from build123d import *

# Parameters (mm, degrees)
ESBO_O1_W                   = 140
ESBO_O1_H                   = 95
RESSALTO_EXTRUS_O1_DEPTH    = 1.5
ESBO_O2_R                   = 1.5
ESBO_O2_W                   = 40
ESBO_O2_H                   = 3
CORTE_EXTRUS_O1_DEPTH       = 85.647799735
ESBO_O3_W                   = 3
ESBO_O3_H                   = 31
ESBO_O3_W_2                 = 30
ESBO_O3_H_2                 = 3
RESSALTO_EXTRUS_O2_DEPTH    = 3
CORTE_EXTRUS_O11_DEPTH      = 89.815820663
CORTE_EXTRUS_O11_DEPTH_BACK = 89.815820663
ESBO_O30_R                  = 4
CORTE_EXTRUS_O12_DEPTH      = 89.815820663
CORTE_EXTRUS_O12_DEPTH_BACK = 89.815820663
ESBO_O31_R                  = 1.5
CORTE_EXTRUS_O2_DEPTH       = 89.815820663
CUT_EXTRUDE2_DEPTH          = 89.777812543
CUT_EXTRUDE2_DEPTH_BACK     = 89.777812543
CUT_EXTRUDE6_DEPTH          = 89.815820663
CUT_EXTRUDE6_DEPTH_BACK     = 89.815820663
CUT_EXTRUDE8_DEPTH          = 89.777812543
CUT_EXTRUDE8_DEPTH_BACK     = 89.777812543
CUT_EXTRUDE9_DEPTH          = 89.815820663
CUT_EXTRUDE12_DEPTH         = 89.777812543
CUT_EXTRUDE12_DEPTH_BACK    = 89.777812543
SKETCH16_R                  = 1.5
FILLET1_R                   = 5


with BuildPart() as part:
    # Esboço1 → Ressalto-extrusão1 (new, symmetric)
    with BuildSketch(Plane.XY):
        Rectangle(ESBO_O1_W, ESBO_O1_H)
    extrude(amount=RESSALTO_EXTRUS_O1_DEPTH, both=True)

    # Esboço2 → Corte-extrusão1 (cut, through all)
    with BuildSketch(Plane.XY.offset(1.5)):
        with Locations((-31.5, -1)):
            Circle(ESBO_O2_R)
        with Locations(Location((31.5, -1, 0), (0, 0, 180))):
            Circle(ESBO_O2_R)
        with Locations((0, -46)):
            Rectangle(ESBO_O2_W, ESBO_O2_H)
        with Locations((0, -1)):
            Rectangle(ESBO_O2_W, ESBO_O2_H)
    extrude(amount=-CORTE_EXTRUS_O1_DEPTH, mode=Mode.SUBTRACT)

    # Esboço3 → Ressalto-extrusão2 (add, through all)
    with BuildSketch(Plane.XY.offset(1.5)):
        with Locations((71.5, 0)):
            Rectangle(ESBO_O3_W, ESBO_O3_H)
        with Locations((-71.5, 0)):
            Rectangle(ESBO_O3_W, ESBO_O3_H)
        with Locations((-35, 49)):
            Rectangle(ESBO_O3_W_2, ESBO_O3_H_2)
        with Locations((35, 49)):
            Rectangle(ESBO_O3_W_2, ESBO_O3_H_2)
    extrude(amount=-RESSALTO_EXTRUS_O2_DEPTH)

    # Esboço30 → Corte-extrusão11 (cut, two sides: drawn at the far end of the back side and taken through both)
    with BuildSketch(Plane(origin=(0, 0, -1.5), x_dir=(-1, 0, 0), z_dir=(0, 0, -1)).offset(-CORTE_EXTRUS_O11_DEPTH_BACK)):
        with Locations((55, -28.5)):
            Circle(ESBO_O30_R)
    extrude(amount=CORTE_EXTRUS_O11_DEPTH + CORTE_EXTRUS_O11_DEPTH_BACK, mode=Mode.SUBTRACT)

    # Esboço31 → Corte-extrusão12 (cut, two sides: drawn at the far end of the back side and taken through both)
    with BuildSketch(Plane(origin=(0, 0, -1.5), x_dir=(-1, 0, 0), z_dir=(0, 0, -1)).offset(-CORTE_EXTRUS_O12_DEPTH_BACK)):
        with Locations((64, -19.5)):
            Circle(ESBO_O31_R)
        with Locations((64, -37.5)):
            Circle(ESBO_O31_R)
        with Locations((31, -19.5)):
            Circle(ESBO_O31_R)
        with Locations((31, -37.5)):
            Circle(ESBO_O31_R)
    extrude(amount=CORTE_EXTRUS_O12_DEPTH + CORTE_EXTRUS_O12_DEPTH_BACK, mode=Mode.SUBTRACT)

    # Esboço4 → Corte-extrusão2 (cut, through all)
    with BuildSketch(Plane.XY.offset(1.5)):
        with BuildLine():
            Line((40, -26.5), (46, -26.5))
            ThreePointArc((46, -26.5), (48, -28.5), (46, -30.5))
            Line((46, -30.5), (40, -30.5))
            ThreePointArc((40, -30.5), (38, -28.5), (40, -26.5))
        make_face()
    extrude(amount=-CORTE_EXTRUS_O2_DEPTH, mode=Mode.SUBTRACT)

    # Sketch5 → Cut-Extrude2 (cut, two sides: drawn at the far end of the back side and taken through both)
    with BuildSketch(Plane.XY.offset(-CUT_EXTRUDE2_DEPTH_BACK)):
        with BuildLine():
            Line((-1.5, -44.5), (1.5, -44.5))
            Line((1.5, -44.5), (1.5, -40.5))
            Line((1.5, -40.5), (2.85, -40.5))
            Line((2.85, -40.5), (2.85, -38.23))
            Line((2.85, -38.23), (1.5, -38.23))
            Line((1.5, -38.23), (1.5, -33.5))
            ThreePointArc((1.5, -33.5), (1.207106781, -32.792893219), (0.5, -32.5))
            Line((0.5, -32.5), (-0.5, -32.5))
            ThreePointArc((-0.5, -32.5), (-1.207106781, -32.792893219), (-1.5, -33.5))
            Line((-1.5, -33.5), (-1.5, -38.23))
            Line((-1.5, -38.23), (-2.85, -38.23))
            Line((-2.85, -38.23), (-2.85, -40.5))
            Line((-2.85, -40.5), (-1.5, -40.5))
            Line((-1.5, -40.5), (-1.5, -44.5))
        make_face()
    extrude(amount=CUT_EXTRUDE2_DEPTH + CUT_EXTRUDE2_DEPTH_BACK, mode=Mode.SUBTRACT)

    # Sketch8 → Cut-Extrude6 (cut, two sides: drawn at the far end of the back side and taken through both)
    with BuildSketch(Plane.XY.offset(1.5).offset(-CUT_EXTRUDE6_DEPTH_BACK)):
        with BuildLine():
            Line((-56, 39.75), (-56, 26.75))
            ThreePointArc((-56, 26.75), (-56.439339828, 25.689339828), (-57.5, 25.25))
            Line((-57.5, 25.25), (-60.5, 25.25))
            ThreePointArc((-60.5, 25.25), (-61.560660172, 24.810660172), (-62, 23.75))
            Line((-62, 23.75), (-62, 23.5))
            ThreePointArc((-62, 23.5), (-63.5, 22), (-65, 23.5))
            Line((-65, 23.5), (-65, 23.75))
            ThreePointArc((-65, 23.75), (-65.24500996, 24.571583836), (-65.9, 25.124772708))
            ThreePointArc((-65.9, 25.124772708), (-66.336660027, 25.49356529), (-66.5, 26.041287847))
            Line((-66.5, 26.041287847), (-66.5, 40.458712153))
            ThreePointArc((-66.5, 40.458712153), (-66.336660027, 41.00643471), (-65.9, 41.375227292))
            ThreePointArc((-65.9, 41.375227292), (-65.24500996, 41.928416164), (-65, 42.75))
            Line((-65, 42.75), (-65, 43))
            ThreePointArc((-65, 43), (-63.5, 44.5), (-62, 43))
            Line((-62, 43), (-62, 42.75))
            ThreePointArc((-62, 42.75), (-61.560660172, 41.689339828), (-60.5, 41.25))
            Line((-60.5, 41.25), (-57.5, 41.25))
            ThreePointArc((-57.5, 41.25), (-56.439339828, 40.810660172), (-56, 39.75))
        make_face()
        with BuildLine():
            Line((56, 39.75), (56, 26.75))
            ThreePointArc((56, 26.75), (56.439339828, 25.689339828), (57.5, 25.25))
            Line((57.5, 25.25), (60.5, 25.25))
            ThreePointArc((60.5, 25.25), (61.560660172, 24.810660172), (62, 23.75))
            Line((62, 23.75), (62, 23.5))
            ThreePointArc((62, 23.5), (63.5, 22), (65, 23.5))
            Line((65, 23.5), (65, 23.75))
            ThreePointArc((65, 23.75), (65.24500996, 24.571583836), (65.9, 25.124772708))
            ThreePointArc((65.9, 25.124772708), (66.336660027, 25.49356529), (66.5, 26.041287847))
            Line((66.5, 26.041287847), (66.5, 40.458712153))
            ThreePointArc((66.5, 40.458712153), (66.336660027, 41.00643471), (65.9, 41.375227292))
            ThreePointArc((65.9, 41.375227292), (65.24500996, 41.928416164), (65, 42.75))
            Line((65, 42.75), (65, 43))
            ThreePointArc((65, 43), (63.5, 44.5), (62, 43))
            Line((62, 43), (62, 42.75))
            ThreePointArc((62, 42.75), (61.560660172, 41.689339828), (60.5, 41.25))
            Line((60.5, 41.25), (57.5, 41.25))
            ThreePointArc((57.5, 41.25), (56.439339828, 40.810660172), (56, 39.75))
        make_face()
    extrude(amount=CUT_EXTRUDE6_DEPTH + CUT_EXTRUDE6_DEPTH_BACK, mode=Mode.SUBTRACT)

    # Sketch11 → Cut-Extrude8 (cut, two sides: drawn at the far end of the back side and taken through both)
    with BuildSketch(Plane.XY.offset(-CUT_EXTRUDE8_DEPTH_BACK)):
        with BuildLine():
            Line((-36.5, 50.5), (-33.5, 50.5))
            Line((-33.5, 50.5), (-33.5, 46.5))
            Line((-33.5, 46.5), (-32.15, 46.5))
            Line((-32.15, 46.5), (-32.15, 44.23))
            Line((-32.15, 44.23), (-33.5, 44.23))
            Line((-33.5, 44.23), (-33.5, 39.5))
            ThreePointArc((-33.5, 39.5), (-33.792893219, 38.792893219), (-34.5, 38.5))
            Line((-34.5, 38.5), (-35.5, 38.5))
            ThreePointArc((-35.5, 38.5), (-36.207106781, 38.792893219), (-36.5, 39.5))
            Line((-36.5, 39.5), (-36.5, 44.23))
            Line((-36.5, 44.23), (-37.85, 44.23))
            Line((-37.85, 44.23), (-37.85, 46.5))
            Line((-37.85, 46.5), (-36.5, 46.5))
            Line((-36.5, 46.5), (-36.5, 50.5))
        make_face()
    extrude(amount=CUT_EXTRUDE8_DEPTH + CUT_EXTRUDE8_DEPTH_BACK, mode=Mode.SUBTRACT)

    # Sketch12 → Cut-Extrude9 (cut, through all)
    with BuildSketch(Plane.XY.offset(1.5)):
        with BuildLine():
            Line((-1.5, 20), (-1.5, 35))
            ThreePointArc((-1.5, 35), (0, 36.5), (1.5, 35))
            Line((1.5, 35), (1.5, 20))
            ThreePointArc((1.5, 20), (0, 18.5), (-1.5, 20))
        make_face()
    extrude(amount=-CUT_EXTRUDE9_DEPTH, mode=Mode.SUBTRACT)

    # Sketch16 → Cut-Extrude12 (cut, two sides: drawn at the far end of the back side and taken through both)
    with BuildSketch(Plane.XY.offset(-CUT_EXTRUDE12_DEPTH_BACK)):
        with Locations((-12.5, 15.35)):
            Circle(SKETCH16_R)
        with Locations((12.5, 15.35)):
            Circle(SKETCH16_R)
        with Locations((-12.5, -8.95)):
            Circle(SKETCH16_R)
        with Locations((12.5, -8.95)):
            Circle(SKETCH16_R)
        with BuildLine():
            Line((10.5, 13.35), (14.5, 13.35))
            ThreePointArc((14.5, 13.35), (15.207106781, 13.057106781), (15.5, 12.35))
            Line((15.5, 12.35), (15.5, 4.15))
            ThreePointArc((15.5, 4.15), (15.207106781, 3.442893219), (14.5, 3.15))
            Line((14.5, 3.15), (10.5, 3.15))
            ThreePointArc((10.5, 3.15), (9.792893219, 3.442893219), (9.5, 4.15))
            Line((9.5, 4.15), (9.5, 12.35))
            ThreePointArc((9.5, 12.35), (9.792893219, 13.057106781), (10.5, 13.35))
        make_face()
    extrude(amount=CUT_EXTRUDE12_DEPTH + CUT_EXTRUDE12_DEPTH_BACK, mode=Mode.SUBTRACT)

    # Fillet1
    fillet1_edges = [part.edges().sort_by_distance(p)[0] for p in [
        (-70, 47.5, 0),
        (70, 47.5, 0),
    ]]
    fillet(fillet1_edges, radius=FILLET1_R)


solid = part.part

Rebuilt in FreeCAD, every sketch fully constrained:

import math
import FreeCAD as App
import Part
import Sketcher
from FreeCAD import Vector
Q = App.Units.Quantity


def edges_at(feature, points):
    """Names of the edges that pass closest to the given points."""
    edges = feature.Shape.Edges
    near = lambda p: min(range(len(edges)), key=lambda i: edges[i].distToShape(Part.Vertex(*p))[0])
    return sorted({f"Edge{near(p) + 1}" for p in points})


def add_polygon(sketch, points):
    """Adds a closed chain of lines whose ends are joined by coincident constraints."""
    first, n = sketch.GeometryCount, len(points)
    for a, b in zip(points, points[1:] + points[:1]):
        sketch.addGeometry(Part.LineSegment(App.Vector(*a, 0), App.Vector(*b, 0)), False)
    for i in range(n):
        sketch.addConstraint(Sketcher.Constraint("Coincident", first + i, 2, first + (i + 1) % n, 1))

doc = App.newDocument("Part")
params = doc.addObject("Spreadsheet::Sheet", "Params")
for row, (alias, value) in enumerate([
    ("sketch1_width", "140 mm"),
    ("sketch1_height", "95 mm"),
    ("pad1_length", "3 mm"),
    ("sketch2_diameter", "3 mm"),
    ("sketch2_width", "40 mm"),
    ("sketch2_height", "3 mm"),
    ("sketch3_width", "3 mm"),
    ("sketch3_width2", "30 mm"),
    ("sketch3_height", "31 mm"),
    ("sketch4_diameter", "8 mm"),
    ("sketch5_diameter", "3 mm"),
    ("sketch6_radius", "2 mm"),
    ("sketch6_width", "6 mm"),
    ("sketch7_radius", "1 mm"),
    ("sketch7_width", "3 mm"),
    ("sketch7_height", "4 mm"),
    ("sketch7_width2", "1.35 mm"),
    ("sketch7_height2", "2.27 mm"),
    ("sketch8_radius", "1 mm"),
    ("sketch8_radius2", "1.5 mm"),
    ("sketch8_width", "3 mm"),
    ("sketch8_height", "13 mm"),
    ("sketch8_height2", "0.25 mm"),
    ("sketch9_radius", "1 mm"),
    ("sketch9_width", "3 mm"),
    ("sketch9_height", "4 mm"),
    ("sketch9_width2", "1.35 mm"),
    ("sketch9_height2", "2.27 mm"),
    ("sketch10_radius", "1.5 mm"),
    ("sketch10_height", "15 mm"),
    ("sketch11_diameter", "3 mm"),
    ("sketch11_radius", "1 mm"),
    ("sketch11_width", "4 mm"),
    ("sketch11_height", "8.2 mm"),
    ("fillet_radius", "5 mm"),
], start=1):
    params.set(f"A{row}", alias)
    params.set(f"B{row}", "=" + value)
    params.setAlias(f"B{row}", alias)

body = doc.addObject("PartDesign::Body", "Body")

sketch1 = body.newObject("Sketcher::SketchObject", "Sketch")
sketch1.AttachmentSupport = (doc.getObject("XY_Plane"), [""])
sketch1.MapMode = "FlatFace"
add_polygon(sketch1, [(-70, 48), (-70, -48), (70, -48), (70, 48)])
sketch1.addConstraint([
    Sketcher.Constraint("Vertical", 0),
    Sketcher.Constraint("Horizontal", 1),
    Sketcher.Constraint("Vertical", 2),
    Sketcher.Constraint("Horizontal", 3),
    Sketcher.Constraint("Symmetric", 0, 2, 2, 2, -1, 1),
    Sketcher.Constraint("DistanceX", 1, 1, 1, 2, Q("140 mm")),
    Sketcher.Constraint("DistanceY", 0, 2, 0, 1, Q("95 mm")),
])
sketch1.setExpression("Constraints[9]", "Params.sketch1_width")
sketch1.setExpression("Constraints[10]", "Params.sketch1_height")
pad1 = body.newObject("PartDesign::Pad", "Pad")
pad1.Profile = sketch1
pad1.setExpression("Length", "Params.pad1_length")
pad1.Midplane = True

sketch2 = body.newObject("Sketcher::SketchObject", "Sketch001")
sketch2.AttachmentSupport = (doc.getObject("XY_Plane"), [""])
sketch2.MapMode = "FlatFace"
sketch2.AttachmentOffset = App.Placement(Vector(0, 0, 1.5), App.Rotation())
sketch2.addGeometry(Part.Circle(Vector(-31.5, -1, 0), Vector(0, 0, 1), 1.5), False)
sketch2.addGeometry(Part.Circle(Vector(31.5, -1, 0), Vector(0, 0, 1), 1.5), False)
add_polygon(sketch2, [(-20, -44.5), (-20, -47.5), (20, -47.5), (20, -44.5)])
add_polygon(sketch2, [(-20, 0.5), (-20, -2.5), (20, -2.5), (20, 0.5)])
sketch2.addConstraint([
    Sketcher.Constraint("Vertical", 2),
    Sketcher.Constraint("Horizontal", 3),
    Sketcher.Constraint("Vertical", 4),
    Sketcher.Constraint("Horizontal", 5),
    Sketcher.Constraint("Vertical", 6),
    Sketcher.Constraint("Horizontal", 7),
    Sketcher.Constraint("Vertical", 8),
    Sketcher.Constraint("Horizontal", 9),
    Sketcher.Constraint("Equal", 0, 1),
    Sketcher.Constraint("Symmetric", 0, 3, 1, 3, -2),
    Sketcher.Constraint("Vertical", 5, 2, 6, 2),
    Sketcher.Constraint("Vertical", 4, 2, 7, 2),
    Sketcher.Constraint("Equal", 4, 6),
    Sketcher.Constraint("Diameter", 0, Q("3 mm")),
    Sketcher.Constraint("DistanceX", 3, 1, 3, 2, Q("40 mm")),
    Sketcher.Constraint("DistanceY", 2, 2, 2, 1, Q("3 mm")),
    Sketcher.Constraint("DistanceY", 0, 3, -1, 1, Q("1 mm")),
    Sketcher.Constraint("DistanceX", 2, 2, -1, 1, Q("20 mm")),
    Sketcher.Constraint("DistanceX", 0, 3, 1, 3, Q("63 mm")),
    Sketcher.Constraint("DistanceY", 5, 2, 6, 2, Q("42 mm")),
    Sketcher.Constraint("DistanceY", 2, 2, -1, 1, Q("47.5 mm")),
])
sketch2.setExpression("Constraints[21]", "Params.sketch2_diameter")
sketch2.setExpression("Constraints[22]", "Params.sketch2_width")
sketch2.setExpression("Constraints[23]", "Params.sketch2_height")
pocket1 = body.newObject("PartDesign::Pocket", "Pocket")
pocket1.Profile = sketch2
pocket1.Type = "ThroughAll"

sketch3 = body.newObject("Sketcher::SketchObject", "Sketch002")
sketch3.AttachmentSupport = (doc.getObject("XY_Plane"), [""])
sketch3.MapMode = "FlatFace"
sketch3.AttachmentOffset = App.Placement(Vector(0, 0, 1.5), App.Rotation())
add_polygon(sketch3, [(70, 15.5), (70, -15.5), (73, -15.5), (73, 15.5)])
add_polygon(sketch3, [(-73, 15.5), (-73, -15.5), (-70, -15.5), (-70, 15.5)])
add_polygon(sketch3, [(-50, 50.5), (-50, 47.5), (-20, 47.5), (-20, 50.5)])
add_polygon(sketch3, [(20, 50.5), (20, 47.5), (50, 47.5), (50, 50.5)])
sketch3.addConstraint([
    Sketcher.Constraint("Vertical", 0),
    Sketcher.Constraint("Horizontal", 1),
    Sketcher.Constraint("Vertical", 2),
    Sketcher.Constraint("Horizontal", 3),
    Sketcher.Constraint("Vertical", 4),
    Sketcher.Constraint("Horizontal", 5),
    Sketcher.Constraint("Vertical", 6),
    Sketcher.Constraint("Horizontal", 7),
    Sketcher.Constraint("Vertical", 8),
    Sketcher.Constraint("Horizontal", 9),
    Sketcher.Constraint("Vertical", 10),
    Sketcher.Constraint("Horizontal", 11),
    Sketcher.Constraint("Vertical", 12),
    Sketcher.Constraint("Horizontal", 13),
    Sketcher.Constraint("Vertical", 14),
    Sketcher.Constraint("Horizontal", 15),
    Sketcher.Constraint("Symmetric", 2, 2, 4, 2, -1, 1),
    Sketcher.Constraint("Symmetric", 0, 2, 6, 2, -1, 1),
    Sketcher.Constraint("Symmetric", 9, 2, 12, 2, -2),
    Sketcher.Constraint("Symmetric", 11, 2, 14, 2, -2),
    Sketcher.Constraint("Horizontal", 1, 2, 4, 2),
    Sketcher.Constraint("Equal", 7, 8),
    Sketcher.Constraint("DistanceX", 1, 1, 1, 2, Q("3 mm")),
    Sketcher.Constraint("DistanceX", 9, 1, 9, 2, Q("30 mm")),
    Sketcher.Constraint("DistanceY", 0, 2, 0, 1, Q("31 mm")),
    Sketcher.Constraint("DistanceX", -1, 1, 0, 2, Q("70 mm")),
    Sketcher.Constraint("DistanceX", 8, 2, -1, 1, Q("50 mm")),
    Sketcher.Constraint("DistanceY", 6, 2, 8, 2, Q("32 mm")),
])
sketch3.setExpression("Constraints[38]", "Params.sketch3_width")
sketch3.setExpression("Constraints[39]", "Params.sketch3_width2")
sketch3.setExpression("Constraints[40]", "Params.sketch3_height")
pad2 = body.newObject("PartDesign::Pad", "Pad001")
pad2.Profile = sketch3
pad2.Type = "UpToLast"
pad2.Reversed = True

sketch4 = body.newObject("Sketcher::SketchObject", "Sketch003")
sketch4.AttachmentSupport = (doc.getObject("XY_Plane"), [""])
sketch4.MapMode = "FlatFace"
sketch4.AttachmentOffset = App.Placement(Vector(0, 0, -1.5), App.Rotation())
sketch4.addGeometry(Part.Circle(Vector(-55, -28.5, 0), Vector(0, 0, 1), 4), False)
sketch4.addConstraint([
    Sketcher.Constraint("Diameter", 0, Q("8 mm")),
    Sketcher.Constraint("DistanceX", 0, 3, -1, 1, Q("55 mm")),
    Sketcher.Constraint("DistanceY", 0, 3, -1, 1, Q("28.5 mm")),
])
sketch4.setExpression("Constraints[0]", "Params.sketch4_diameter")
pocket2 = body.newObject("PartDesign::Pocket", "Pocket001")
pocket2.Profile = sketch4
pocket2.Type = "ThroughAll"
pocket2.Midplane = True

sketch5 = body.newObject("Sketcher::SketchObject", "Sketch004")
sketch5.AttachmentSupport = (doc.getObject("XY_Plane"), [""])
sketch5.MapMode = "FlatFace"
sketch5.AttachmentOffset = App.Placement(Vector(0, 0, -1.5), App.Rotation())
sketch5.addGeometry([
    Part.Circle(Vector(-64, -19.5, 0), Vector(0, 0, 1), 1.5),
    Part.Circle(Vector(-64, -37.5, 0), Vector(0, 0, 1), 1.5),
    Part.Circle(Vector(-31, -19.5, 0), Vector(0, 0, 1), 1.5),
    Part.Circle(Vector(-31, -37.5, 0), Vector(0, 0, 1), 1.5),
], False)
sketch5.addConstraint([
    Sketcher.Constraint("Equal", 0, 1),
    Sketcher.Constraint("Equal", 1, 2),
    Sketcher.Constraint("Equal", 2, 3),
    Sketcher.Constraint("Horizontal", 0, 3, 2, 3),
    Sketcher.Constraint("Horizontal", 1, 3, 3, 3),
    Sketcher.Constraint("Vertical", 0, 3, 1, 3),
    Sketcher.Constraint("Vertical", 2, 3, 3, 3),
    Sketcher.Constraint("Diameter", 0, Q("3 mm")),
    Sketcher.Constraint("DistanceX", 0, 3, -1, 1, Q("64 mm")),
    Sketcher.Constraint("DistanceX", 2, 3, -1, 1, Q("31 mm")),
    Sketcher.Constraint("DistanceY", 1, 3, 0, 3, Q("18 mm")),
    Sketcher.Constraint("DistanceY", 0, 3, -1, 1, Q("19.5 mm")),
])
sketch5.setExpression("Constraints[7]", "Params.sketch5_diameter")
pocket3 = body.newObject("PartDesign::Pocket", "Pocket002")
pocket3.Profile = sketch5
pocket3.Type = "ThroughAll"
pocket3.Midplane = True

sketch6 = body.newObject("Sketcher::SketchObject", "Sketch005")
sketch6.AttachmentSupport = (doc.getObject("XY_Plane"), [""])
sketch6.MapMode = "FlatFace"
sketch6.AttachmentOffset = App.Placement(Vector(0, 0, 1.5), App.Rotation())
sketch6.addGeometry([
    Part.LineSegment(Vector(46, -26.5, 0), Vector(40, -26.5, 0)),
    Part.ArcOfCircle(Part.Circle(Vector(40, -28.5, 0), Vector(0, 0, 1), 2), math.radians(90), math.radians(270)),
    Part.LineSegment(Vector(40, -30.5, 0), Vector(46, -30.5, 0)),
    Part.ArcOfCircle(Part.Circle(Vector(46, -28.5, 0), Vector(0, 0, 1), 2), math.radians(-90), math.radians(90)),
], False)
sketch6.addConstraint([
    Sketcher.Constraint("Tangent", 0, 2, 1, 1),
    Sketcher.Constraint("Tangent", 1, 2, 2, 1),
    Sketcher.Constraint("Tangent", 2, 2, 3, 1),
    Sketcher.Constraint("Tangent", 3, 2, 0, 1),
    Sketcher.Constraint("Horizontal", 0),
    Sketcher.Constraint("Horizontal", 2),
    Sketcher.Constraint("Radius", 1, Q("2 mm")),
    Sketcher.Constraint("DistanceX", 0, 2, 0, 1, Q("6 mm")),
    Sketcher.Constraint("DistanceX", -1, 1, 1, 3, Q("40 mm")),
    Sketcher.Constraint("DistanceY", 1, 3, -1, 1, Q("28.5 mm")),
])
sketch6.setExpression("Constraints[6]", "Params.sketch6_radius")
sketch6.setExpression("Constraints[7]", "Params.sketch6_width")
pocket4 = body.newObject("PartDesign::Pocket", "Pocket003")
pocket4.Profile = sketch6
pocket4.Type = "ThroughAll"

sketch7 = body.newObject("Sketcher::SketchObject", "Sketch006")
sketch7.AttachmentSupport = (doc.getObject("XY_Plane"), [""])
sketch7.MapMode = "FlatFace"
sketch7.addGeometry([
    Part.LineSegment(Vector(-1.5, -44.5, 0), Vector(1.5, -44.5, 0)),
    Part.LineSegment(Vector(1.5, -44.5, 0), Vector(1.5, -40.5, 0)),
    Part.LineSegment(Vector(1.5, -40.5, 0), Vector(2.9, -40.5, 0)),
    Part.LineSegment(Vector(2.9, -40.5, 0), Vector(2.9, -38.2, 0)),
    Part.LineSegment(Vector(2.9, -38.2, 0), Vector(1.5, -38.2, 0)),
    Part.LineSegment(Vector(1.5, -38.2, 0), Vector(1.5, -33.5, 0)),
    Part.ArcOfCircle(Part.Circle(Vector(0.5, -33.5, 0), Vector(0, 0, 1), 1), math.radians(0), math.radians(90)),
    Part.LineSegment(Vector(0.5, -32.5, 0), Vector(-0.5, -32.5, 0)),
    Part.ArcOfCircle(Part.Circle(Vector(-0.5, -33.5, 0), Vector(0, 0, 1), 1), math.radians(90), math.radians(180)),
    Part.LineSegment(Vector(-1.5, -33.5, 0), Vector(-1.5, -38.2, 0)),
    Part.LineSegment(Vector(-1.5, -38.2, 0), Vector(-2.9, -38.2, 0)),
    Part.LineSegment(Vector(-2.9, -38.2, 0), Vector(-2.9, -40.5, 0)),
    Part.LineSegment(Vector(-2.9, -40.5, 0), Vector(-1.5, -40.5, 0)),
    Part.LineSegment(Vector(-1.5, -40.5, 0), Vector(-1.5, -44.5, 0)),
], False)
sketch7.addConstraint([
    Sketcher.Constraint("Coincident", 0, 2, 1, 1),
    Sketcher.Constraint("Coincident", 1, 2, 2, 1),
    Sketcher.Constraint("Coincident", 2, 2, 3, 1),
    Sketcher.Constraint("Coincident", 3, 2, 4, 1),
    Sketcher.Constraint("Coincident", 4, 2, 5, 1),
    Sketcher.Constraint("Tangent", 5, 2, 6, 1),
    Sketcher.Constraint("Tangent", 6, 2, 7, 1),
    Sketcher.Constraint("Tangent", 7, 2, 8, 1),
    Sketcher.Constraint("Tangent", 8, 2, 9, 1),
    Sketcher.Constraint("Coincident", 9, 2, 10, 1),
    Sketcher.Constraint("Coincident", 10, 2, 11, 1),
    Sketcher.Constraint("Coincident", 11, 2, 12, 1),
    Sketcher.Constraint("Coincident", 12, 2, 13, 1),
    Sketcher.Constraint("Coincident", 13, 2, 0, 1),
    Sketcher.Constraint("Horizontal", 0),
    Sketcher.Constraint("Vertical", 1),
    Sketcher.Constraint("Horizontal", 2),
    Sketcher.Constraint("Vertical", 3),
    Sketcher.Constraint("Horizontal", 4),
    Sketcher.Constraint("Vertical", 5),
    Sketcher.Constraint("Horizontal", 7),
    Sketcher.Constraint("Vertical", 9),
    Sketcher.Constraint("Horizontal", 10),
    Sketcher.Constraint("Vertical", 11),
    Sketcher.Constraint("Horizontal", 12),
    Sketcher.Constraint("Vertical", 13),
    Sketcher.Constraint("Equal", 6, 8),
    Sketcher.Constraint("Symmetric", 4, 2, 9, 2, -2),
    Sketcher.Constraint("Symmetric", 2, 2, 11, 2, -2),
    Sketcher.Constraint("Vertical", 1, 2, 4, 2),
    Sketcher.Constraint("Vertical", 9, 2, 12, 2),
    Sketcher.Constraint("Radius", 6, Q("1 mm")),
    Sketcher.Constraint("DistanceX", 0, 1, 0, 2, Q("3 mm")),
    Sketcher.Constraint("DistanceY", 1, 1, 1, 2, Q("4 mm")),
    Sketcher.Constraint("DistanceY", 0, 2, 6, 3, Q("11 mm")),
    Sketcher.Constraint("DistanceX", 2, 1, 2, 2, Q("1.35 mm")),
    Sketcher.Constraint("DistanceY", 3, 1, 3, 2, Q("2.27 mm")),
    Sketcher.Constraint("DistanceY", 6, 3, -1, 1, Q("33.5 mm")),
])
sketch7.setExpression("Constraints[31]", "Params.sketch7_radius")
sketch7.setExpression("Constraints[32]", "Params.sketch7_width")
sketch7.setExpression("Constraints[33]", "Params.sketch7_height")
sketch7.setExpression("Constraints[35]", "Params.sketch7_width2")
sketch7.setExpression("Constraints[36]", "Params.sketch7_height2")
pocket5 = body.newObject("PartDesign::Pocket", "Pocket004")
pocket5.Profile = sketch7
pocket5.Type = "ThroughAll"
pocket5.Midplane = True

sketch8 = body.newObject("Sketcher::SketchObject", "Sketch007")
sketch8.AttachmentSupport = (doc.getObject("XY_Plane"), [""])
sketch8.MapMode = "FlatFace"
sketch8.AttachmentOffset = App.Placement(Vector(0, 0, 1.5), App.Rotation())
sketch8.addGeometry([
    Part.LineSegment(Vector(-56, 26.75, 0), Vector(-56, 39.75, 0)),
    Part.ArcOfCircle(Part.Circle(Vector(-57.5, 39.75, 0), Vector(0, 0, 1), 1.5), math.radians(0), math.radians(90)),
    Part.LineSegment(Vector(-57.5, 41.25, 0), Vector(-60.5, 41.25, 0)),
    Part.ArcOfCircle(Part.Circle(Vector(-60.5, 42.75, 0), Vector(0, 0, 1), 1.5), math.radians(180), math.radians(270)),
    Part.LineSegment(Vector(-62, 42.75, 0), Vector(-62, 43, 0)),
    Part.ArcOfCircle(Part.Circle(Vector(-63.5, 43, 0), Vector(0, 0, 1), 1.5), math.radians(0), math.radians(180)),
    Part.LineSegment(Vector(-65, 43, 0), Vector(-65, 42.75, 0)),
    Part.ArcOfCircle(Part.Circle(Vector(-66.5, 42.75, 0), Vector(0, 0, 1), 1.5), math.radians(-66), math.radians(0)),
    Part.ArcOfCircle(Part.Circle(Vector(-65.5, 40.46, 0), Vector(0, 0, 1), 1), math.radians(114), math.radians(180)),
    Part.LineSegment(Vector(-66.5, 40.46, 0), Vector(-66.5, 26.04, 0)),
    Part.ArcOfCircle(Part.Circle(Vector(-65.5, 26.04, 0), Vector(0, 0, 1), 1), math.radians(180), math.radians(246)),
    Part.ArcOfCircle(Part.Circle(Vector(-66.5, 23.75, 0), Vector(0, 0, 1), 1.5), math.radians(0), math.radians(66)),
    Part.LineSegment(Vector(-65, 23.75, 0), Vector(-65, 23.5, 0)),
    Part.ArcOfCircle(Part.Circle(Vector(-63.5, 23.5, 0), Vector(0, 0, 1), 1.5), math.radians(180), math.radians(360)),
    Part.LineSegment(Vector(-62, 23.5, 0), Vector(-62, 23.75, 0)),
    Part.ArcOfCircle(Part.Circle(Vector(-60.5, 23.75, 0), Vector(0, 0, 1), 1.5), math.radians(90), math.radians(180)),
    Part.LineSegment(Vector(-60.5, 25.25, 0), Vector(-57.5, 25.25, 0)),
    Part.ArcOfCircle(Part.Circle(Vector(-57.5, 26.75, 0), Vector(0, 0, 1), 1.5), math.radians(-90), math.radians(0)),
    Part.LineSegment(Vector(56, 39.75, 0), Vector(56, 26.75, 0)),
    Part.ArcOfCircle(Part.Circle(Vector(57.5, 26.75, 0), Vector(0, 0, 1), 1.5), math.radians(180), math.radians(270)),
    Part.LineSegment(Vector(57.5, 25.25, 0), Vector(60.5, 25.25, 0)),
    Part.ArcOfCircle(Part.Circle(Vector(60.5, 23.75, 0), Vector(0, 0, 1), 1.5), math.radians(0), math.radians(90)),
    Part.LineSegment(Vector(62, 23.75, 0), Vector(62, 23.5, 0)),
    Part.ArcOfCircle(Part.Circle(Vector(63.5, 23.5, 0), Vector(0, 0, 1), 1.5), math.radians(180), math.radians(360)),
    Part.LineSegment(Vector(65, 23.5, 0), Vector(65, 23.75, 0)),
    Part.ArcOfCircle(Part.Circle(Vector(66.5, 23.75, 0), Vector(0, 0, 1), 1.5), math.radians(114), math.radians(180)),
    Part.ArcOfCircle(Part.Circle(Vector(65.5, 26.04, 0), Vector(0, 0, 1), 1), math.radians(-66), math.radians(0)),
    Part.LineSegment(Vector(66.5, 26.04, 0), Vector(66.5, 40.46, 0)),
    Part.ArcOfCircle(Part.Circle(Vector(65.5, 40.46, 0), Vector(0, 0, 1), 1), math.radians(0), math.radians(66)),
    Part.ArcOfCircle(Part.Circle(Vector(66.5, 42.75, 0), Vector(0, 0, 1), 1.5), math.radians(180), math.radians(246)),
    Part.LineSegment(Vector(65, 42.75, 0), Vector(65, 43, 0)),
    Part.ArcOfCircle(Part.Circle(Vector(63.5, 43, 0), Vector(0, 0, 1), 1.5), math.radians(0), math.radians(180)),
    Part.LineSegment(Vector(62, 43, 0), Vector(62, 42.75, 0)),
    Part.ArcOfCircle(Part.Circle(Vector(60.5, 42.75, 0), Vector(0, 0, 1), 1.5), math.radians(-90), math.radians(0)),
    Part.LineSegment(Vector(60.5, 41.25, 0), Vector(57.5, 41.25, 0)),
    Part.ArcOfCircle(Part.Circle(Vector(57.5, 39.75, 0), Vector(0, 0, 1), 1.5), math.radians(90), math.radians(180)),
], False)
sketch8.addConstraint([
    Sketcher.Constraint("Tangent", 0, 2, 1, 1),
    Sketcher.Constraint("Tangent", 1, 2, 2, 1),
    Sketcher.Constraint("Tangent", 2, 2, 3, 2),
    Sketcher.Constraint("Tangent", 3, 1, 4, 1),
    Sketcher.Constraint("Tangent", 4, 2, 5, 1),
    Sketcher.Constraint("Tangent", 5, 2, 6, 1),
    Sketcher.Constraint("Tangent", 6, 2, 7, 2),
    Sketcher.Constraint("Tangent", 7, 1, 8, 1),
    Sketcher.Constraint("Tangent", 8, 2, 9, 1),
    Sketcher.Constraint("Tangent", 9, 2, 10, 1),
    Sketcher.Constraint("Tangent", 10, 2, 11, 2),
    Sketcher.Constraint("Tangent", 11, 1, 12, 1),
    Sketcher.Constraint("Tangent", 12, 2, 13, 1),
    Sketcher.Constraint("Tangent", 13, 2, 14, 1),
    Sketcher.Constraint("Tangent", 14, 2, 15, 2),
    Sketcher.Constraint("Tangent", 15, 1, 16, 1),
    Sketcher.Constraint("Tangent", 16, 2, 17, 1),
    Sketcher.Constraint("Tangent", 17, 2, 0, 1),
    Sketcher.Constraint("Tangent", 18, 2, 19, 1),
    Sketcher.Constraint("Tangent", 19, 2, 20, 1),
    Sketcher.Constraint("Tangent", 20, 2, 21, 2),
    Sketcher.Constraint("Tangent", 21, 1, 22, 1),
    Sketcher.Constraint("Tangent", 22, 2, 23, 1),
    Sketcher.Constraint("Tangent", 23, 2, 24, 1),
    Sketcher.Constraint("Tangent", 24, 2, 25, 2),
    Sketcher.Constraint("Tangent", 25, 1, 26, 1),
    Sketcher.Constraint("Tangent", 26, 2, 27, 1),
    Sketcher.Constraint("Tangent", 27, 2, 28, 1),
    Sketcher.Constraint("Tangent", 28, 2, 29, 2),
    Sketcher.Constraint("Tangent", 29, 1, 30, 1),
    Sketcher.Constraint("Tangent", 30, 2, 31, 1),
    Sketcher.Constraint("Tangent", 31, 2, 32, 1),
    Sketcher.Constraint("Tangent", 32, 2, 33, 2),
    Sketcher.Constraint("Tangent", 33, 1, 34, 1),
    Sketcher.Constraint("Tangent", 34, 2, 35, 1),
    Sketcher.Constraint("Tangent", 35, 2, 18, 1),
    Sketcher.Constraint("Vertical", 0),
    Sketcher.Constraint("Horizontal", 2),
    Sketcher.Constraint("Vertical", 4),
    Sketcher.Constraint("Vertical", 6),
    Sketcher.Constraint("Vertical", 9),
    Sketcher.Constraint("Vertical", 12),
    Sketcher.Constraint("Vertical", 14),
    Sketcher.Constraint("Horizontal", 16),
    Sketcher.Constraint("Vertical", 18),
    Sketcher.Constraint("Horizontal", 20),
    Sketcher.Constraint("Vertical", 22),
    Sketcher.Constraint("Vertical", 24),
    Sketcher.Constraint("Vertical", 27),
    Sketcher.Constraint("Vertical", 30),
    Sketcher.Constraint("Vertical", 32),
    Sketcher.Constraint("Horizontal", 34),
    Sketcher.Constraint("Equal", 1, 3),
    Sketcher.Constraint("Equal", 3, 5),
    Sketcher.Constraint("Equal", 5, 7),
    Sketcher.Constraint("Equal", 8, 10),
    Sketcher.Constraint("Equal", 7, 11),
    Sketcher.Constraint("Equal", 11, 13),
    Sketcher.Constraint("Equal", 13, 15),
    Sketcher.Constraint("Equal", 15, 17),
    Sketcher.Constraint("Equal", 17, 19),
    Sketcher.Constraint("Equal", 19, 21),
    Sketcher.Constraint("Equal", 21, 23),
    Sketcher.Constraint("Equal", 23, 25),
    Sketcher.Constraint("Equal", 10, 26),
    Sketcher.Constraint("Equal", 26, 28),
    Sketcher.Constraint("Equal", 25, 29),
    Sketcher.Constraint("Equal", 29, 31),
    Sketcher.Constraint("Equal", 31, 33),
    Sketcher.Constraint("Equal", 33, 35),
    Sketcher.Constraint("Symmetric", 17, 3, 19, 3, -2),
    Sketcher.Constraint("Symmetric", 13, 3, 23, 3, -2),
    Sketcher.Constraint("Symmetric", 10, 3, 26, 3, -2),
    Sketcher.Constraint("Symmetric", 7, 3, 29, 3, -2),
    Sketcher.Constraint("Horizontal", 3, 3, 7, 3),
    Sketcher.Constraint("Horizontal", 11, 3, 15, 3),
    Sketcher.Constraint("Horizontal", 5, 3, 31, 3),
    Sketcher.Constraint("Horizontal", 29, 3, 33, 3),
    Sketcher.Constraint("Vertical", 7, 3, 11, 3),
    Sketcher.Constraint("Vertical", 11, 3, 8, 2),
    Sketcher.Constraint("Equal", 6, 12),
    Sketcher.Constraint("Radius", 8, Q("1 mm")),
    Sketcher.Constraint("Radius", 1, Q("1.5 mm")),
    Sketcher.Constraint("DistanceX", 2, 2, 2, 1, Q("3 mm")),
    Sketcher.Constraint("DistanceY", 0, 1, 0, 2, Q("13 mm")),
    Sketcher.Constraint("DistanceY", -1, 1, 5, 3, Q("43 mm")),
    Sketcher.Constraint("DistanceX", 0, 2, -1, 1, Q("56 mm")),
    Sketcher.Constraint("DistanceY", 4, 1, 4, 2, Q("0.25 mm")),
])
sketch8.setExpression("Constraints[81]", "Params.sketch8_radius")
sketch8.setExpression("Constraints[82]", "Params.sketch8_radius2")
sketch8.setExpression("Constraints[83]", "Params.sketch8_width")
sketch8.setExpression("Constraints[84]", "Params.sketch8_height")
sketch8.setExpression("Constraints[87]", "Params.sketch8_height2")
pocket6 = body.newObject("PartDesign::Pocket", "Pocket005")
pocket6.Profile = sketch8
pocket6.Type = "ThroughAll"
pocket6.Midplane = True

sketch9 = body.newObject("Sketcher::SketchObject", "Sketch008")
sketch9.AttachmentSupport = (doc.getObject("XY_Plane"), [""])
sketch9.MapMode = "FlatFace"
sketch9.addGeometry([
    Part.LineSegment(Vector(-33.5, 50.5, 0), Vector(-36.5, 50.5, 0)),
    Part.LineSegment(Vector(-36.5, 50.5, 0), Vector(-36.5, 46.5, 0)),
    Part.LineSegment(Vector(-36.5, 46.5, 0), Vector(-37.9, 46.5, 0)),
    Part.LineSegment(Vector(-37.9, 46.5, 0), Vector(-37.9, 44.2, 0)),
    Part.LineSegment(Vector(-37.9, 44.2, 0), Vector(-36.5, 44.2, 0)),
    Part.LineSegment(Vector(-36.5, 44.2, 0), Vector(-36.5, 39.5, 0)),
    Part.ArcOfCircle(Part.Circle(Vector(-35.5, 39.5, 0), Vector(0, 0, 1), 1), math.radians(-180), math.radians(-90)),
    Part.LineSegment(Vector(-35.5, 38.5, 0), Vector(-34.5, 38.5, 0)),
    Part.ArcOfCircle(Part.Circle(Vector(-34.5, 39.5, 0), Vector(0, 0, 1), 1), math.radians(-90), math.radians(0)),
    Part.LineSegment(Vector(-33.5, 39.5, 0), Vector(-33.5, 44.2, 0)),
    Part.LineSegment(Vector(-33.5, 44.2, 0), Vector(-32.1, 44.2, 0)),
    Part.LineSegment(Vector(-32.1, 44.2, 0), Vector(-32.1, 46.5, 0)),
    Part.LineSegment(Vector(-32.1, 46.5, 0), Vector(-33.5, 46.5, 0)),
    Part.LineSegment(Vector(-33.5, 46.5, 0), Vector(-33.5, 50.5, 0)),
], False)
sketch9.addConstraint([
    Sketcher.Constraint("Coincident", 0, 2, 1, 1),
    Sketcher.Constraint("Coincident", 1, 2, 2, 1),
    Sketcher.Constraint("Coincident", 2, 2, 3, 1),
    Sketcher.Constraint("Coincident", 3, 2, 4, 1),
    Sketcher.Constraint("Coincident", 4, 2, 5, 1),
    Sketcher.Constraint("Tangent", 5, 2, 6, 1),
    Sketcher.Constraint("Tangent", 6, 2, 7, 1),
    Sketcher.Constraint("Tangent", 7, 2, 8, 1),
    Sketcher.Constraint("Tangent", 8, 2, 9, 1),
    Sketcher.Constraint("Coincident", 9, 2, 10, 1),
    Sketcher.Constraint("Coincident", 10, 2, 11, 1),
    Sketcher.Constraint("Coincident", 11, 2, 12, 1),
    Sketcher.Constraint("Coincident", 12, 2, 13, 1),
    Sketcher.Constraint("Coincident", 13, 2, 0, 1),
    Sketcher.Constraint("Horizontal", 0),
    Sketcher.Constraint("Vertical", 1),
    Sketcher.Constraint("Horizontal", 2),
    Sketcher.Constraint("Vertical", 3),
    Sketcher.Constraint("Horizontal", 4),
    Sketcher.Constraint("Vertical", 5),
    Sketcher.Constraint("Horizontal", 7),
    Sketcher.Constraint("Vertical", 9),
    Sketcher.Constraint("Horizontal", 10),
    Sketcher.Constraint("Vertical", 11),
    Sketcher.Constraint("Horizontal", 12),
    Sketcher.Constraint("Vertical", 13),
    Sketcher.Constraint("Equal", 6, 8),
    Sketcher.Constraint("Horizontal", 4, 2, 9, 2),
    Sketcher.Constraint("Horizontal", 2, 2, 11, 2),
    Sketcher.Constraint("Vertical", 1, 2, 4, 2),
    Sketcher.Constraint("Vertical", 9, 2, 12, 2),
    Sketcher.Constraint("Equal", 4, 10),
    Sketcher.Constraint("Radius", 6, Q("1 mm")),
    Sketcher.Constraint("DistanceX", 0, 2, 0, 1, Q("3 mm")),
    Sketcher.Constraint("DistanceY", 1, 2, 1, 1, Q("4 mm")),
    Sketcher.Constraint("DistanceY", 6, 3, 0, 2, Q("11 mm")),
    Sketcher.Constraint("DistanceX", 2, 2, 2, 1, Q("1.35 mm")),
    Sketcher.Constraint("DistanceY", 3, 2, 3, 1, Q("2.27 mm")),
    Sketcher.Constraint("DistanceX", 6, 3, -1, 1, Q("35.5 mm")),
    Sketcher.Constraint("DistanceY", -1, 1, 6, 3, Q("39.5 mm")),
])
sketch9.setExpression("Constraints[32]", "Params.sketch9_radius")
sketch9.setExpression("Constraints[33]", "Params.sketch9_width")
sketch9.setExpression("Constraints[34]", "Params.sketch9_height")
sketch9.setExpression("Constraints[36]", "Params.sketch9_width2")
sketch9.setExpression("Constraints[37]", "Params.sketch9_height2")
pocket7 = body.newObject("PartDesign::Pocket", "Pocket006")
pocket7.Profile = sketch9
pocket7.Type = "ThroughAll"
pocket7.Midplane = True

sketch10 = body.newObject("Sketcher::SketchObject", "Sketch009")
sketch10.AttachmentSupport = (doc.getObject("XY_Plane"), [""])
sketch10.MapMode = "FlatFace"
sketch10.AttachmentOffset = App.Placement(Vector(0, 0, 1.5), App.Rotation())
sketch10.addGeometry([
    Part.LineSegment(Vector(-1.5, 35, 0), Vector(-1.5, 20, 0)),
    Part.ArcOfCircle(Part.Circle(Vector(0, 20, 0), Vector(0, 0, 1), 1.5), math.radians(180), math.radians(360)),
    Part.LineSegment(Vector(1.5, 20, 0), Vector(1.5, 35, 0)),
    Part.ArcOfCircle(Part.Circle(Vector(0, 35, 0), Vector(0, 0, 1), 1.5), math.radians(0), math.radians(180)),
], False)
sketch10.addConstraint([
    Sketcher.Constraint("Tangent", 0, 2, 1, 1),
    Sketcher.Constraint("Tangent", 1, 2, 2, 1),
    Sketcher.Constraint("Tangent", 2, 2, 3, 1),
    Sketcher.Constraint("Tangent", 3, 2, 0, 1),
    Sketcher.Constraint("Vertical", 0),
    Sketcher.Constraint("Vertical", 2),
    Sketcher.Constraint("PointOnObject", 1, 3, -2),
    Sketcher.Constraint("Radius", 1, Q("1.5 mm")),
    Sketcher.Constraint("DistanceY", 0, 2, 0, 1, Q("15 mm")),
    Sketcher.Constraint("DistanceY", -1, 1, 1, 3, Q("20 mm")),
])
sketch10.setExpression("Constraints[7]", "Params.sketch10_radius")
sketch10.setExpression("Constraints[8]", "Params.sketch10_height")
pocket8 = body.newObject("PartDesign::Pocket", "Pocket007")
pocket8.Profile = sketch10
pocket8.Type = "ThroughAll"

sketch11 = body.newObject("Sketcher::SketchObject", "Sketch010")
sketch11.AttachmentSupport = (doc.getObject("XY_Plane"), [""])
sketch11.MapMode = "FlatFace"
sketch11.addGeometry([
    Part.Circle(Vector(-12.5, 15.3, 0), Vector(0, 0, 1), 1.5),
    Part.Circle(Vector(12.5, 15.3, 0), Vector(0, 0, 1), 1.5),
    Part.Circle(Vector(-12.5, -8.9, 0), Vector(0, 0, 1), 1.5),
    Part.Circle(Vector(12.5, -8.9, 0), Vector(0, 0, 1), 1.5),
    Part.LineSegment(Vector(14.5, 13.3, 0), Vector(10.5, 13.3, 0)),
    Part.ArcOfCircle(Part.Circle(Vector(10.5, 12.3, 0), Vector(0, 0, 1), 1), math.radians(90), math.radians(180)),
    Part.LineSegment(Vector(9.5, 12.3, 0), Vector(9.5, 4.2, 0)),
    Part.ArcOfCircle(Part.Circle(Vector(10.5, 4.2, 0), Vector(0, 0, 1), 1), math.radians(-180), math.radians(-90)),
    Part.LineSegment(Vector(10.5, 3.1, 0), Vector(14.5, 3.1, 0)),
    Part.ArcOfCircle(Part.Circle(Vector(14.5, 4.2, 0), Vector(0, 0, 1), 1), math.radians(-90), math.radians(0)),
    Part.LineSegment(Vector(15.5, 4.2, 0), Vector(15.5, 12.3, 0)),
    Part.ArcOfCircle(Part.Circle(Vector(14.5, 12.3, 0), Vector(0, 0, 1), 1), math.radians(0), math.radians(90)),
], False)
sketch11.addConstraint([
    Sketcher.Constraint("Tangent", 4, 2, 5, 1),
    Sketcher.Constraint("Tangent", 5, 2, 6, 1),
    Sketcher.Constraint("Tangent", 6, 2, 7, 1),
    Sketcher.Constraint("Tangent", 7, 2, 8, 1),
    Sketcher.Constraint("Tangent", 8, 2, 9, 1),
    Sketcher.Constraint("Tangent", 9, 2, 10, 1),
    Sketcher.Constraint("Tangent", 10, 2, 11, 1),
    Sketcher.Constraint("Tangent", 11, 2, 4, 1),
    Sketcher.Constraint("Horizontal", 4),
    Sketcher.Constraint("Vertical", 6),
    Sketcher.Constraint("Horizontal", 8),
    Sketcher.Constraint("Vertical", 10),
    Sketcher.Constraint("Equal", 0, 1),
    Sketcher.Constraint("Equal", 1, 2),
    Sketcher.Constraint("Equal", 2, 3),
    Sketcher.Constraint("Equal", 5, 7),
    Sketcher.Constraint("Equal", 7, 9),
    Sketcher.Constraint("Equal", 9, 11),
    Sketcher.Constraint("Symmetric", 0, 3, 1, 3, -2),
    Sketcher.Constraint("Symmetric", 2, 3, 3, 3, -2),
    Sketcher.Constraint("Vertical", 0, 3, 2, 3),
    Sketcher.Constraint("Diameter", 0, Q("3 mm")),
    Sketcher.Constraint("Radius", 5, Q("1 mm")),
    Sketcher.Constraint("DistanceX", 4, 2, 4, 1, Q("4 mm")),
    Sketcher.Constraint("DistanceY", 6, 2, 6, 1, Q("8.2 mm")),
    Sketcher.Constraint("DistanceX", 0, 3, 1, 3, Q("25 mm")),
    Sketcher.Constraint("DistanceX", 5, 3, 1, 3, Q("2 mm")),
    Sketcher.Constraint("DistanceY", 5, 3, 1, 3, Q("3 mm")),
    Sketcher.Constraint("DistanceY", 2, 3, 0, 3, Q("24.3 mm")),
    Sketcher.Constraint("DistanceY", -1, 1, 0, 3, Q("15.35 mm")),
])
sketch11.setExpression("Constraints[21]", "Params.sketch11_diameter")
sketch11.setExpression("Constraints[22]", "Params.sketch11_radius")
sketch11.setExpression("Constraints[23]", "Params.sketch11_width")
sketch11.setExpression("Constraints[24]", "Params.sketch11_height")
pocket9 = body.newObject("PartDesign::Pocket", "Pocket008")
pocket9.Profile = sketch11
pocket9.Type = "ThroughAll"
pocket9.Midplane = True
doc.recompute()

fillet = body.newObject("PartDesign::Fillet", "Fillet")
fillet.Base = (pocket9, edges_at(pocket9, [(-70, 47.5, 0), (70, 47.5, 0)]))
fillet.setExpression("Radius", "Params.fillet_radius")

doc.recompute()
